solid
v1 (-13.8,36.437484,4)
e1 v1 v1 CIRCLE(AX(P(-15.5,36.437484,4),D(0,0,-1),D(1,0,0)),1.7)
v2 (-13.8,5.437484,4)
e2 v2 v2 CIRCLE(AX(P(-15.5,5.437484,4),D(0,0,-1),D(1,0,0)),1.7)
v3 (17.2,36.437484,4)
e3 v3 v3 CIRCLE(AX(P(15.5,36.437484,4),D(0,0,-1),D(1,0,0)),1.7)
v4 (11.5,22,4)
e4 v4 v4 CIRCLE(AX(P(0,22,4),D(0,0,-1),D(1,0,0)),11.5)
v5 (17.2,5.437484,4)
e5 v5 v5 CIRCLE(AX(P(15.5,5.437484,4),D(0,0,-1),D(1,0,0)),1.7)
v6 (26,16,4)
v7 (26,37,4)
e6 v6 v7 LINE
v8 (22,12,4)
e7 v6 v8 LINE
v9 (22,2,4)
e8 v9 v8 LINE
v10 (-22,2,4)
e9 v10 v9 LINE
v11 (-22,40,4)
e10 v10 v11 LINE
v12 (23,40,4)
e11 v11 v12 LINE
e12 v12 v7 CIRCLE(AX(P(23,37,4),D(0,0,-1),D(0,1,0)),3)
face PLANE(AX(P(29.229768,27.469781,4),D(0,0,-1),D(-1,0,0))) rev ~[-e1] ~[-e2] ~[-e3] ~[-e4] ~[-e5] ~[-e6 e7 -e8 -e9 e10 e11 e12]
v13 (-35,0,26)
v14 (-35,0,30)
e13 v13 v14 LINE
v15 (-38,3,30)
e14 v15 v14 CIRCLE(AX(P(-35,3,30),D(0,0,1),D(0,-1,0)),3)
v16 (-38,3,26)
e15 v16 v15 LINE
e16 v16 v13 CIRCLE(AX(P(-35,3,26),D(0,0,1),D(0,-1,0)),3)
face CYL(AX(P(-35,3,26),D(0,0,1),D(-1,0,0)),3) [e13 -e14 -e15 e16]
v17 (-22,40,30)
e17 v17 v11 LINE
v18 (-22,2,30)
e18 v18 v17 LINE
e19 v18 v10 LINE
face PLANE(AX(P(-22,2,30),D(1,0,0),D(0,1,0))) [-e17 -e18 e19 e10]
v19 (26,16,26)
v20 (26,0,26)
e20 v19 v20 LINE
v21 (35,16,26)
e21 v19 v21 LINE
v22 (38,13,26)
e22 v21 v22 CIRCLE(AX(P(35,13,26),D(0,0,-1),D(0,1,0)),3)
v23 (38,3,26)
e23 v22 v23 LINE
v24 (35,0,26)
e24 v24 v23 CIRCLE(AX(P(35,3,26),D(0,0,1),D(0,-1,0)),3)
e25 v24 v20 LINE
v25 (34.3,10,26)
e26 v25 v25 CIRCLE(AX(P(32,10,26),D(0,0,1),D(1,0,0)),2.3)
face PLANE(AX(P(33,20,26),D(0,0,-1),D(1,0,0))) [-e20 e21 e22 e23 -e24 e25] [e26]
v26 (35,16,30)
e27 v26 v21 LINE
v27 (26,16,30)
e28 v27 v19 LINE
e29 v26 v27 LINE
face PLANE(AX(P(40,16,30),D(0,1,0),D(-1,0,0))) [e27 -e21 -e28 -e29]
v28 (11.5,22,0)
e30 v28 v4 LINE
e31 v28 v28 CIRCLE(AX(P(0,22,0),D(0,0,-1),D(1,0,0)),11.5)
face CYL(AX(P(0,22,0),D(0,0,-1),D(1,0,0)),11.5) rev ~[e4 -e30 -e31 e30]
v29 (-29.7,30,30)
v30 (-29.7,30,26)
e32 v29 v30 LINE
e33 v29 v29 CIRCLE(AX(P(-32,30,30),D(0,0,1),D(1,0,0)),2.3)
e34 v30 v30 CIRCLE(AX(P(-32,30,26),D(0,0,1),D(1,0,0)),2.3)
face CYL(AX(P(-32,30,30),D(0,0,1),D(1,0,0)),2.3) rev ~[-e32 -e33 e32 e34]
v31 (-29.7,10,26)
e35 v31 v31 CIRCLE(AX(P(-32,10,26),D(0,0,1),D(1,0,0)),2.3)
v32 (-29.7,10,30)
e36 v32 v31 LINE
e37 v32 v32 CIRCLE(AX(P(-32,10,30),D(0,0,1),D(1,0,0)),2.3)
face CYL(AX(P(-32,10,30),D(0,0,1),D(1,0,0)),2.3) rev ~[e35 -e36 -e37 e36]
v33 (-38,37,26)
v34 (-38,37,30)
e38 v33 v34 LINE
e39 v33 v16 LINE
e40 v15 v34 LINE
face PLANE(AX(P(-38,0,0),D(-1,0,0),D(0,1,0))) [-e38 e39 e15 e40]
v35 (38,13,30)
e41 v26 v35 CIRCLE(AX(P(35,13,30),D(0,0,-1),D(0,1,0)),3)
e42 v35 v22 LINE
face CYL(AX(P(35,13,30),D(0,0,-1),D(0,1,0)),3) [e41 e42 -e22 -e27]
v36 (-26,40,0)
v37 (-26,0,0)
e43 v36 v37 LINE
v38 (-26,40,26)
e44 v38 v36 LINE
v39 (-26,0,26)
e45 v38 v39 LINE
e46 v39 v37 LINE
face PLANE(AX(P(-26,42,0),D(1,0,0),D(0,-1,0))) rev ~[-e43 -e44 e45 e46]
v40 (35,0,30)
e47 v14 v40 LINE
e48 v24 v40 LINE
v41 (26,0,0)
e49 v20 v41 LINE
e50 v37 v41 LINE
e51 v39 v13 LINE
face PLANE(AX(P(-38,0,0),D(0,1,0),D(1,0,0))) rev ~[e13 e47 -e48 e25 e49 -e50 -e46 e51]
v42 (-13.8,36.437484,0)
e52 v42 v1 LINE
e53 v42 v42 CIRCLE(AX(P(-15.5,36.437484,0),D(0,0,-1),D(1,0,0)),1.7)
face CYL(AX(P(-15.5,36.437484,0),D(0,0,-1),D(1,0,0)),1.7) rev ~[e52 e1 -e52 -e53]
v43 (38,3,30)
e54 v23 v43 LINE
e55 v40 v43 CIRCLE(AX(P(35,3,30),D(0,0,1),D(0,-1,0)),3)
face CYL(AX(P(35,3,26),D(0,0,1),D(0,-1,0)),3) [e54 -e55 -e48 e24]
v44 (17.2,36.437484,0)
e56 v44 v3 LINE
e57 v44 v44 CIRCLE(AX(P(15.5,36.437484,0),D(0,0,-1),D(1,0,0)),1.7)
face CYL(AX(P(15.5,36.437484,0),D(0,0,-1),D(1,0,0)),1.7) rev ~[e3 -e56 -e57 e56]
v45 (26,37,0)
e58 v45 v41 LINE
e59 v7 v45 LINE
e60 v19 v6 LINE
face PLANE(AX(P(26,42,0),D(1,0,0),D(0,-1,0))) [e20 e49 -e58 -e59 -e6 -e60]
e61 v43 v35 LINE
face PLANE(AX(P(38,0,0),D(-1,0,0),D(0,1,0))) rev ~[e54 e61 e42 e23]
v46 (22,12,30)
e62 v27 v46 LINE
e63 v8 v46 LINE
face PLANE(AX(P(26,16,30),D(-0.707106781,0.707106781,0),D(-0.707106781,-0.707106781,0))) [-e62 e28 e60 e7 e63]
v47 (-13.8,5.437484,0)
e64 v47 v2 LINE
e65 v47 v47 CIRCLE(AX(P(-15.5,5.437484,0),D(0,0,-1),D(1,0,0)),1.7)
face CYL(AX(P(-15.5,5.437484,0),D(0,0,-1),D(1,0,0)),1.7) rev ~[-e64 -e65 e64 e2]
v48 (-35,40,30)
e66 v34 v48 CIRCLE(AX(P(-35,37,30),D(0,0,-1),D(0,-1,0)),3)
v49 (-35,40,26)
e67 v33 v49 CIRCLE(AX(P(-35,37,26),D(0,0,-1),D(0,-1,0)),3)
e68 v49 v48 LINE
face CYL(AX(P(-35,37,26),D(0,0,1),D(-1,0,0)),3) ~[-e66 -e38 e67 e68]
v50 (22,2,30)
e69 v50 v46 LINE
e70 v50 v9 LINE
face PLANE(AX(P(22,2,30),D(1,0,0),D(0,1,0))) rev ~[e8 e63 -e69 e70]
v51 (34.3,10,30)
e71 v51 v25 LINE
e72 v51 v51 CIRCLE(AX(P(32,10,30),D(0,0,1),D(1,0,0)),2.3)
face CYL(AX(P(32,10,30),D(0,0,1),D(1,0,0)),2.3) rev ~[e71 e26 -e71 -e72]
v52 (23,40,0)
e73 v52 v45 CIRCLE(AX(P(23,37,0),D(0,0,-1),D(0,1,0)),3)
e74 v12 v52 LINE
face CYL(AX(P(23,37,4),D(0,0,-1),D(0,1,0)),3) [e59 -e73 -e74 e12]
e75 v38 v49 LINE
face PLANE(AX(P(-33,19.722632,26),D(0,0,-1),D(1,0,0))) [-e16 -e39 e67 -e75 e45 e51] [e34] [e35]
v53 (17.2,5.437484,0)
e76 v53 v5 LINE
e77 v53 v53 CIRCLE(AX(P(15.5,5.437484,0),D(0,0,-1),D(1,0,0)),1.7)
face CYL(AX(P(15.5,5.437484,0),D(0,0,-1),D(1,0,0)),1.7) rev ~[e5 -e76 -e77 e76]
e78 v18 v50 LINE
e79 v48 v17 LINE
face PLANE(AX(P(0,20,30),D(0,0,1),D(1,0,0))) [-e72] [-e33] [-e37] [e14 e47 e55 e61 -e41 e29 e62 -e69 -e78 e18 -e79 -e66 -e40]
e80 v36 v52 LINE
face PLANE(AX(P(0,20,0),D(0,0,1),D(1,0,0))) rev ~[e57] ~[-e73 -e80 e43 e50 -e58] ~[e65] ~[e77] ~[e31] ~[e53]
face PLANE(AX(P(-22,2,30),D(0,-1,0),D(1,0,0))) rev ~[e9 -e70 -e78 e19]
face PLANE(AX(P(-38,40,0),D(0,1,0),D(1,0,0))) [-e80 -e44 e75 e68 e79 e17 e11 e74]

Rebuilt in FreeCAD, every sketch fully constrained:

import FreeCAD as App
import Part
import Sketcher


def edges_at(feature, points):
    """Names of the edges that pass closest to the given points."""
    edges = feature.Shape.Edges
    near = lambda p: min(range(len(edges)), key=lambda i: edges[i].distToShape(Part.Vertex(*p))[0])
    return sorted({f"Edge{near(p) + 1}" for p in points})


def add_polygon(sketch, points):
    """Adds a closed chain of lines whose ends are joined by coincident constraints."""
    first, n = sketch.GeometryCount, len(points)
    for a, b in zip(points, points[1:] + points[:1]):
        sketch.addGeometry(Part.LineSegment(App.Vector(*a, 0), App.Vector(*b, 0)), False)
    for i in range(n):
        sketch.addConstraint(Sketcher.Constraint("Coincident", first + i, 2, first + (i + 1) % n, 1))

doc = App.newDocument("Part")
params = doc.addObject("Spreadsheet::Sheet", "Params")
for row, (alias, value) in enumerate([
    ("sketch1_width", "76 mm"),
    ("sketch1_height", "40 mm"),
    ("pad1_length", "30 mm"),
    ("sketch2_width", "44 mm"),
    ("pocket1_length", "26 mm"),
    ("sketch3_diameter", "4.6 mm"),
    ("sketch4_width", "14 mm"),
    ("sketch4_height", "44 mm"),
    ("pocket3_length", "26 mm"),
    ("sketch5_width", "20 mm"),
    ("sketch5_width2", "14 mm"),
    ("sketch5_height", "32 mm"),
    ("sketch5_height2", "26 mm"),
    ("pocket4_length", "26 mm"),
    ("sketch6_diameter", "23 mm"),
    ("sketch6_diameter2", "3.4 mm"),
    ("pocket5_length", "5 mm"),
    ("fillet_radius", "3 mm"),
], start=1):
    params.set(f"A{row}", alias)
    params.set(f"B{row}", "=" + value)
    params.setAlias(f"B{row}", alias)

body = doc.addObject("PartDesign::Body", "Body")

sketch1 = body.newObject("Sketcher::SketchObject", "Sketch")
sketch1.AttachmentSupport = (doc.getObject("XY_Plane"), [""])
sketch1.MapMode = "FlatFace"
add_polygon(sketch1, [(-38, 40), (-38, 0), (38, 0), (38, 40)])
sketch1.addConstraint(Sketcher.Constraint("Vertical", 0))
sketch1.addConstraint(Sketcher.Constraint("Horizontal", 1))
sketch1.addConstraint(Sketcher.Constraint("Vertical", 2))
sketch1.addConstraint(Sketcher.Constraint("Horizontal", 3))
sketch1.addConstraint(Sketcher.Constraint("Symmetric", 0, 2, 1, 2, -1, 1))
sketch1.addConstraint(Sketcher.Constraint("DistanceX", 1, 1, 1, 2, 76.0))
sketch1.addConstraint(Sketcher.Constraint("DistanceY", 0, 2, 0, 1, 40.0))
sketch1.setExpression("Constraints[9]", "Params.sketch1_width")
sketch1.setExpression("Constraints[10]", "Params.sketch1_height")
pad1 = body.newObject("PartDesign::Pad", "Pad")
pad1.Profile = sketch1
pad1.setExpression("Length", "Params.pad1_length")

sketch2 = body.newObject("Sketcher::SketchObject", "Sketch001")
sketch2.AttachmentSupport = (doc.getObject("XY_Plane"), [""])
sketch2.MapMode = "FlatFace"
sketch2.AttachmentOffset = App.Placement(App.Vector(0, 0, 30), App.Rotation())
add_polygon(sketch2, [(-22, 45), (-22, 2), (22, 2), (22, 45)])
sketch2.addConstraint(Sketcher.Constraint("Vertical", 0))
sketch2.addConstraint(Sketcher.Constraint("Horizontal", 1))
sketch2.addConstraint(Sketcher.Constraint("Vertical", 2))
sketch2.addConstraint(Sketcher.Constraint("Horizontal", 3))
sketch2.addConstraint(Sketcher.Constraint("DistanceX", 1, 1, 1, 2, 44.0))
sketch2.addConstraint(Sketcher.Constraint("DistanceX", 0, 2, -1, 1, 22.0))
sketch2.addConstraint(Sketcher.Constraint("DistanceY", -1, 1, 0, 2, 2.0))
sketch2.addConstraint(Sketcher.Constraint("DistanceY", 0, 2, 0, 1, 43.078728))
sketch2.setExpression("Constraints[8]", "Params.sketch2_width")
pocket1 = body.newObject("PartDesign::Pocket", "Pocket")
pocket1.Profile = sketch2
pocket1.setExpression("Length", "Params.pocket1_length")

sketch3 = body.newObject("Sketcher::SketchObject", "Sketch002")
sketch3.AttachmentSupport = (doc.getObject("XY_Plane"), [""])
sketch3.MapMode = "FlatFace"
sketch3.AttachmentOffset = App.Placement(App.Vector(0, 0, 30), App.Rotation())
sketch3.addGeometry(Part.Circle(App.Vector(-32, 10, 0), App.Vector(0, 0, 1), 2.3), False)
sketch3.addGeometry(Part.Circle(App.Vector(-32, 30, 0), App.Vector(0, 0, 1), 2.3), False)
sketch3.addGeometry(Part.Circle(App.Vector(32, 10, 0), App.Vector(0, 0, 1), 2.3), False)
sketch3.addConstraint(Sketcher.Constraint("Equal", 0, 1))
sketch3.addConstraint(Sketcher.Constraint("Equal", 1, 2))
sketch3.addConstraint(Sketcher.Constraint("Symmetric", 0, 3, 2, 3, -2))
sketch3.addConstraint(Sketcher.Constraint("Vertical", 0, 3, 1, 3))
sketch3.addConstraint(Sketcher.Constraint("Diameter", 0, 4.6))
sketch3.addConstraint(Sketcher.Constraint("DistanceX", 0, 3, -1, 1, 32.0))
sketch3.addConstraint(Sketcher.Constraint("DistanceY", -1, 1, 0, 3, 10.0))
sketch3.addConstraint(Sketcher.Constraint("DistanceY", -1, 1, 1, 3, 30.0))
sketch3.setExpression("Constraints[4]", "Params.sketch3_diameter")
pocket2 = body.newObject("PartDesign::Pocket", "Pocket001")
pocket2.Profile = sketch3
pocket2.Type = "ThroughAll"

sketch4 = body.newObject("Sketcher::SketchObject", "Sketch003")
sketch4.AttachmentSupport = (doc.getObject("XY_Plane"), [""])
sketch4.MapMode = "FlatFace"
add_polygon(sketch4, [(-40, -3), (-40, 42), (-26, 42), (-26, -3)])
add_polygon(sketch4, [(26, -2), (26, 42), (40, 42), (40, -2)])
sketch4.addConstraint(Sketcher.Constraint("Vertical", 0))
sketch4.addConstraint(Sketcher.Constraint("Horizontal", 1))
sketch4.addConstraint(Sketcher.Constraint("Vertical", 2))
sketch4.addConstraint(Sketcher.Constraint("Horizontal", 3))
sketch4.addConstraint(Sketcher.Constraint("Vertical", 4))
sketch4.addConstraint(Sketcher.Constraint("Horizontal", 5))
sketch4.addConstraint(Sketcher.Constraint("Vertical", 6))
sketch4.addConstraint(Sketcher.Constraint("Horizontal", 7))
sketch4.addConstraint(Sketcher.Constraint("Symmetric", 1, 2, 4, 2, -2))
sketch4.addConstraint(Sketcher.Constraint("Equal", 3, 5))
sketch4.addConstraint(Sketcher.Constraint("DistanceX", 1, 1, 1, 2, 14.0))
sketch4.addConstraint(Sketcher.Constraint("DistanceY", 4, 1, 4, 2, 44.0))
sketch4.addConstraint(Sketcher.Constraint("DistanceX", 0, 2, -1, 1, 40.0))
sketch4.addConstraint(Sketcher.Constraint("DistanceY", -1, 1, 0, 2, 42.0))
sketch4.addConstraint(Sketcher.Constraint("DistanceY", 0, 1, 0, 2, 44.554736))
sketch4.setExpression("Constraints[18]", "Params.sketch4_width")
sketch4.setExpression("Constraints[19]", "Params.sketch4_height")
pocket3 = body.newObject("PartDesign::Pocket", "Pocket002")
pocket3.Profile = sketch4
pocket3.setExpression("Length", "Params.pocket3_length")
pocket3.Reversed = True

sketch5 = body.newObject("Sketcher::SketchObject", "Sketch004")
sketch5.AttachmentSupport = (doc.getObject("XY_Plane"), [""])
sketch5.MapMode = "FlatFace"
sketch5.AttachmentOffset = App.Placement(App.Vector(0, 0, 30), App.Rotation())
add_polygon(sketch5, [(40, 42), (20, 42), (20, 10), (26, 16), (40, 16)])
sketch5.addConstraint(Sketcher.Constraint("Horizontal", 0))
sketch5.addConstraint(Sketcher.Constraint("Vertical", 1))
sketch5.addConstraint(Sketcher.Constraint("Horizontal", 3))
sketch5.addConstraint(Sketcher.Constraint("Vertical", 4))
sketch5.addConstraint(Sketcher.Constraint("DistanceX", 0, 2, 0, 1, 20.0))
sketch5.addConstraint(Sketcher.Constraint("DistanceX", 3, 1, 3, 2, 14.0))
sketch5.addConstraint(Sketcher.Constraint("DistanceY", 1, 2, 1, 1, 32.0))
sketch5.addConstraint(Sketcher.Constraint("DistanceY", 4, 1, 4, 2, 26.0))
sketch5.addConstraint(Sketcher.Constraint("DistanceX", -1, 1, 0, 2, 20.0))
sketch5.addConstraint(Sketcher.Constraint("DistanceY", -1, 1, 0, 2, 42.0))
sketch5.setExpression("Constraints[9]", "Params.sketch5_width")
sketch5.setExpression("Constraints[10]", "Params.sketch5_width2")
sketch5.setExpression("Constraints[11]", "Params.sketch5_height")
sketch5.setExpression("Constraints[12]", "Params.sketch5_height2")
pocket4 = body.newObject("PartDesign::Pocket", "Pocket003")
pocket4.Profile = sketch5
pocket4.setExpression("Length", "Params.pocket4_length")

sketch6 = body.newObject("Sketcher::SketchObject", "Sketch005")
sketch6.AttachmentSupport = (doc.getObject("XY_Plane"), [""])
sketch6.MapMode = "FlatFace"
sketch6.addGeometry(Part.Circle(App.Vector(0, 22, 0), App.Vector(0, 0, 1), 11.5), False)
sketch6.addGeometry(Part.Circle(App.Vector(-15.5, 5.4, 0), App.Vector(0, 0, 1), 1.7), False)
sketch6.addGeometry(Part.Circle(App.Vector(15.5, 5.4, 0), App.Vector(0, 0, 1), 1.7), False)
sketch6.addGeometry(Part.Circle(App.Vector(15.5, 36.4, 0), App.Vector(0, 0, 1), 1.7), False)
sketch6.addGeometry(Part.Circle(App.Vector(-15.5, 36.4, 0), App.Vector(0, 0, 1), 1.7), False)
sketch6.addConstraint(Sketcher.Constraint("Equal", 1, 2))
sketch6.addConstraint(Sketcher.Constraint("Equal", 2, 3))
sketch6.addConstraint(Sketcher.Constraint("Equal", 3, 4))
sketch6.addConstraint(Sketcher.Constraint("Symmetric", 1, 3, 2, 3, -2))
sketch6.addConstraint(Sketcher.Constraint("Symmetric", 3, 3, 4, 3, -2))
sketch6.addConstraint(Sketcher.Constraint("PointOnObject", 0, 3, -2))
sketch6.addConstraint(Sketcher.Constraint("Vertical", 2, 3, 3, 3))
sketch6.addConstraint(Sketcher.Constraint("Diameter", 0, 23.0))
sketch6.addConstraint(Sketcher.Constraint("Diameter", 1, 3.4))
sketch6.addConstraint(Sketcher.Constraint("DistanceY", -1, 1, 0, 3, 22.0))
sketch6.addConstraint(Sketcher.Constraint("DistanceX", 1, 3, 2, 3, 31.0))
sketch6.addConstraint(Sketcher.Constraint("DistanceY", 2, 3, 3, 3, 31.0))
sketch6.addConstraint(Sketcher.Constraint("DistanceY", -1, 1, 1, 3, 5.437484))
sketch6.setExpression("Constraints[7]", "Params.sketch6_diameter")
sketch6.setExpression("Constraints[8]", "Params.sketch6_diameter2")
pocket5 = body.newObject("PartDesign::Pocket", "Pocket004")
pocket5.Profile = sketch6
pocket5.setExpression("Length", "Params.pocket5_length")
pocket5.Reversed = True
doc.recompute()

fillet = body.newObject("PartDesign::Fillet", "Fillet")
fillet.Base = (pocket5, edges_at(pocket5, [
    (26, 40, 2),
    (38, 16, 28),
    (38, 0, 28),
    (-38, 40, 28),
    (-38, 0, 28),
]))
fillet.setExpression("Radius", "Params.fillet_radius")

doc.recompute()
